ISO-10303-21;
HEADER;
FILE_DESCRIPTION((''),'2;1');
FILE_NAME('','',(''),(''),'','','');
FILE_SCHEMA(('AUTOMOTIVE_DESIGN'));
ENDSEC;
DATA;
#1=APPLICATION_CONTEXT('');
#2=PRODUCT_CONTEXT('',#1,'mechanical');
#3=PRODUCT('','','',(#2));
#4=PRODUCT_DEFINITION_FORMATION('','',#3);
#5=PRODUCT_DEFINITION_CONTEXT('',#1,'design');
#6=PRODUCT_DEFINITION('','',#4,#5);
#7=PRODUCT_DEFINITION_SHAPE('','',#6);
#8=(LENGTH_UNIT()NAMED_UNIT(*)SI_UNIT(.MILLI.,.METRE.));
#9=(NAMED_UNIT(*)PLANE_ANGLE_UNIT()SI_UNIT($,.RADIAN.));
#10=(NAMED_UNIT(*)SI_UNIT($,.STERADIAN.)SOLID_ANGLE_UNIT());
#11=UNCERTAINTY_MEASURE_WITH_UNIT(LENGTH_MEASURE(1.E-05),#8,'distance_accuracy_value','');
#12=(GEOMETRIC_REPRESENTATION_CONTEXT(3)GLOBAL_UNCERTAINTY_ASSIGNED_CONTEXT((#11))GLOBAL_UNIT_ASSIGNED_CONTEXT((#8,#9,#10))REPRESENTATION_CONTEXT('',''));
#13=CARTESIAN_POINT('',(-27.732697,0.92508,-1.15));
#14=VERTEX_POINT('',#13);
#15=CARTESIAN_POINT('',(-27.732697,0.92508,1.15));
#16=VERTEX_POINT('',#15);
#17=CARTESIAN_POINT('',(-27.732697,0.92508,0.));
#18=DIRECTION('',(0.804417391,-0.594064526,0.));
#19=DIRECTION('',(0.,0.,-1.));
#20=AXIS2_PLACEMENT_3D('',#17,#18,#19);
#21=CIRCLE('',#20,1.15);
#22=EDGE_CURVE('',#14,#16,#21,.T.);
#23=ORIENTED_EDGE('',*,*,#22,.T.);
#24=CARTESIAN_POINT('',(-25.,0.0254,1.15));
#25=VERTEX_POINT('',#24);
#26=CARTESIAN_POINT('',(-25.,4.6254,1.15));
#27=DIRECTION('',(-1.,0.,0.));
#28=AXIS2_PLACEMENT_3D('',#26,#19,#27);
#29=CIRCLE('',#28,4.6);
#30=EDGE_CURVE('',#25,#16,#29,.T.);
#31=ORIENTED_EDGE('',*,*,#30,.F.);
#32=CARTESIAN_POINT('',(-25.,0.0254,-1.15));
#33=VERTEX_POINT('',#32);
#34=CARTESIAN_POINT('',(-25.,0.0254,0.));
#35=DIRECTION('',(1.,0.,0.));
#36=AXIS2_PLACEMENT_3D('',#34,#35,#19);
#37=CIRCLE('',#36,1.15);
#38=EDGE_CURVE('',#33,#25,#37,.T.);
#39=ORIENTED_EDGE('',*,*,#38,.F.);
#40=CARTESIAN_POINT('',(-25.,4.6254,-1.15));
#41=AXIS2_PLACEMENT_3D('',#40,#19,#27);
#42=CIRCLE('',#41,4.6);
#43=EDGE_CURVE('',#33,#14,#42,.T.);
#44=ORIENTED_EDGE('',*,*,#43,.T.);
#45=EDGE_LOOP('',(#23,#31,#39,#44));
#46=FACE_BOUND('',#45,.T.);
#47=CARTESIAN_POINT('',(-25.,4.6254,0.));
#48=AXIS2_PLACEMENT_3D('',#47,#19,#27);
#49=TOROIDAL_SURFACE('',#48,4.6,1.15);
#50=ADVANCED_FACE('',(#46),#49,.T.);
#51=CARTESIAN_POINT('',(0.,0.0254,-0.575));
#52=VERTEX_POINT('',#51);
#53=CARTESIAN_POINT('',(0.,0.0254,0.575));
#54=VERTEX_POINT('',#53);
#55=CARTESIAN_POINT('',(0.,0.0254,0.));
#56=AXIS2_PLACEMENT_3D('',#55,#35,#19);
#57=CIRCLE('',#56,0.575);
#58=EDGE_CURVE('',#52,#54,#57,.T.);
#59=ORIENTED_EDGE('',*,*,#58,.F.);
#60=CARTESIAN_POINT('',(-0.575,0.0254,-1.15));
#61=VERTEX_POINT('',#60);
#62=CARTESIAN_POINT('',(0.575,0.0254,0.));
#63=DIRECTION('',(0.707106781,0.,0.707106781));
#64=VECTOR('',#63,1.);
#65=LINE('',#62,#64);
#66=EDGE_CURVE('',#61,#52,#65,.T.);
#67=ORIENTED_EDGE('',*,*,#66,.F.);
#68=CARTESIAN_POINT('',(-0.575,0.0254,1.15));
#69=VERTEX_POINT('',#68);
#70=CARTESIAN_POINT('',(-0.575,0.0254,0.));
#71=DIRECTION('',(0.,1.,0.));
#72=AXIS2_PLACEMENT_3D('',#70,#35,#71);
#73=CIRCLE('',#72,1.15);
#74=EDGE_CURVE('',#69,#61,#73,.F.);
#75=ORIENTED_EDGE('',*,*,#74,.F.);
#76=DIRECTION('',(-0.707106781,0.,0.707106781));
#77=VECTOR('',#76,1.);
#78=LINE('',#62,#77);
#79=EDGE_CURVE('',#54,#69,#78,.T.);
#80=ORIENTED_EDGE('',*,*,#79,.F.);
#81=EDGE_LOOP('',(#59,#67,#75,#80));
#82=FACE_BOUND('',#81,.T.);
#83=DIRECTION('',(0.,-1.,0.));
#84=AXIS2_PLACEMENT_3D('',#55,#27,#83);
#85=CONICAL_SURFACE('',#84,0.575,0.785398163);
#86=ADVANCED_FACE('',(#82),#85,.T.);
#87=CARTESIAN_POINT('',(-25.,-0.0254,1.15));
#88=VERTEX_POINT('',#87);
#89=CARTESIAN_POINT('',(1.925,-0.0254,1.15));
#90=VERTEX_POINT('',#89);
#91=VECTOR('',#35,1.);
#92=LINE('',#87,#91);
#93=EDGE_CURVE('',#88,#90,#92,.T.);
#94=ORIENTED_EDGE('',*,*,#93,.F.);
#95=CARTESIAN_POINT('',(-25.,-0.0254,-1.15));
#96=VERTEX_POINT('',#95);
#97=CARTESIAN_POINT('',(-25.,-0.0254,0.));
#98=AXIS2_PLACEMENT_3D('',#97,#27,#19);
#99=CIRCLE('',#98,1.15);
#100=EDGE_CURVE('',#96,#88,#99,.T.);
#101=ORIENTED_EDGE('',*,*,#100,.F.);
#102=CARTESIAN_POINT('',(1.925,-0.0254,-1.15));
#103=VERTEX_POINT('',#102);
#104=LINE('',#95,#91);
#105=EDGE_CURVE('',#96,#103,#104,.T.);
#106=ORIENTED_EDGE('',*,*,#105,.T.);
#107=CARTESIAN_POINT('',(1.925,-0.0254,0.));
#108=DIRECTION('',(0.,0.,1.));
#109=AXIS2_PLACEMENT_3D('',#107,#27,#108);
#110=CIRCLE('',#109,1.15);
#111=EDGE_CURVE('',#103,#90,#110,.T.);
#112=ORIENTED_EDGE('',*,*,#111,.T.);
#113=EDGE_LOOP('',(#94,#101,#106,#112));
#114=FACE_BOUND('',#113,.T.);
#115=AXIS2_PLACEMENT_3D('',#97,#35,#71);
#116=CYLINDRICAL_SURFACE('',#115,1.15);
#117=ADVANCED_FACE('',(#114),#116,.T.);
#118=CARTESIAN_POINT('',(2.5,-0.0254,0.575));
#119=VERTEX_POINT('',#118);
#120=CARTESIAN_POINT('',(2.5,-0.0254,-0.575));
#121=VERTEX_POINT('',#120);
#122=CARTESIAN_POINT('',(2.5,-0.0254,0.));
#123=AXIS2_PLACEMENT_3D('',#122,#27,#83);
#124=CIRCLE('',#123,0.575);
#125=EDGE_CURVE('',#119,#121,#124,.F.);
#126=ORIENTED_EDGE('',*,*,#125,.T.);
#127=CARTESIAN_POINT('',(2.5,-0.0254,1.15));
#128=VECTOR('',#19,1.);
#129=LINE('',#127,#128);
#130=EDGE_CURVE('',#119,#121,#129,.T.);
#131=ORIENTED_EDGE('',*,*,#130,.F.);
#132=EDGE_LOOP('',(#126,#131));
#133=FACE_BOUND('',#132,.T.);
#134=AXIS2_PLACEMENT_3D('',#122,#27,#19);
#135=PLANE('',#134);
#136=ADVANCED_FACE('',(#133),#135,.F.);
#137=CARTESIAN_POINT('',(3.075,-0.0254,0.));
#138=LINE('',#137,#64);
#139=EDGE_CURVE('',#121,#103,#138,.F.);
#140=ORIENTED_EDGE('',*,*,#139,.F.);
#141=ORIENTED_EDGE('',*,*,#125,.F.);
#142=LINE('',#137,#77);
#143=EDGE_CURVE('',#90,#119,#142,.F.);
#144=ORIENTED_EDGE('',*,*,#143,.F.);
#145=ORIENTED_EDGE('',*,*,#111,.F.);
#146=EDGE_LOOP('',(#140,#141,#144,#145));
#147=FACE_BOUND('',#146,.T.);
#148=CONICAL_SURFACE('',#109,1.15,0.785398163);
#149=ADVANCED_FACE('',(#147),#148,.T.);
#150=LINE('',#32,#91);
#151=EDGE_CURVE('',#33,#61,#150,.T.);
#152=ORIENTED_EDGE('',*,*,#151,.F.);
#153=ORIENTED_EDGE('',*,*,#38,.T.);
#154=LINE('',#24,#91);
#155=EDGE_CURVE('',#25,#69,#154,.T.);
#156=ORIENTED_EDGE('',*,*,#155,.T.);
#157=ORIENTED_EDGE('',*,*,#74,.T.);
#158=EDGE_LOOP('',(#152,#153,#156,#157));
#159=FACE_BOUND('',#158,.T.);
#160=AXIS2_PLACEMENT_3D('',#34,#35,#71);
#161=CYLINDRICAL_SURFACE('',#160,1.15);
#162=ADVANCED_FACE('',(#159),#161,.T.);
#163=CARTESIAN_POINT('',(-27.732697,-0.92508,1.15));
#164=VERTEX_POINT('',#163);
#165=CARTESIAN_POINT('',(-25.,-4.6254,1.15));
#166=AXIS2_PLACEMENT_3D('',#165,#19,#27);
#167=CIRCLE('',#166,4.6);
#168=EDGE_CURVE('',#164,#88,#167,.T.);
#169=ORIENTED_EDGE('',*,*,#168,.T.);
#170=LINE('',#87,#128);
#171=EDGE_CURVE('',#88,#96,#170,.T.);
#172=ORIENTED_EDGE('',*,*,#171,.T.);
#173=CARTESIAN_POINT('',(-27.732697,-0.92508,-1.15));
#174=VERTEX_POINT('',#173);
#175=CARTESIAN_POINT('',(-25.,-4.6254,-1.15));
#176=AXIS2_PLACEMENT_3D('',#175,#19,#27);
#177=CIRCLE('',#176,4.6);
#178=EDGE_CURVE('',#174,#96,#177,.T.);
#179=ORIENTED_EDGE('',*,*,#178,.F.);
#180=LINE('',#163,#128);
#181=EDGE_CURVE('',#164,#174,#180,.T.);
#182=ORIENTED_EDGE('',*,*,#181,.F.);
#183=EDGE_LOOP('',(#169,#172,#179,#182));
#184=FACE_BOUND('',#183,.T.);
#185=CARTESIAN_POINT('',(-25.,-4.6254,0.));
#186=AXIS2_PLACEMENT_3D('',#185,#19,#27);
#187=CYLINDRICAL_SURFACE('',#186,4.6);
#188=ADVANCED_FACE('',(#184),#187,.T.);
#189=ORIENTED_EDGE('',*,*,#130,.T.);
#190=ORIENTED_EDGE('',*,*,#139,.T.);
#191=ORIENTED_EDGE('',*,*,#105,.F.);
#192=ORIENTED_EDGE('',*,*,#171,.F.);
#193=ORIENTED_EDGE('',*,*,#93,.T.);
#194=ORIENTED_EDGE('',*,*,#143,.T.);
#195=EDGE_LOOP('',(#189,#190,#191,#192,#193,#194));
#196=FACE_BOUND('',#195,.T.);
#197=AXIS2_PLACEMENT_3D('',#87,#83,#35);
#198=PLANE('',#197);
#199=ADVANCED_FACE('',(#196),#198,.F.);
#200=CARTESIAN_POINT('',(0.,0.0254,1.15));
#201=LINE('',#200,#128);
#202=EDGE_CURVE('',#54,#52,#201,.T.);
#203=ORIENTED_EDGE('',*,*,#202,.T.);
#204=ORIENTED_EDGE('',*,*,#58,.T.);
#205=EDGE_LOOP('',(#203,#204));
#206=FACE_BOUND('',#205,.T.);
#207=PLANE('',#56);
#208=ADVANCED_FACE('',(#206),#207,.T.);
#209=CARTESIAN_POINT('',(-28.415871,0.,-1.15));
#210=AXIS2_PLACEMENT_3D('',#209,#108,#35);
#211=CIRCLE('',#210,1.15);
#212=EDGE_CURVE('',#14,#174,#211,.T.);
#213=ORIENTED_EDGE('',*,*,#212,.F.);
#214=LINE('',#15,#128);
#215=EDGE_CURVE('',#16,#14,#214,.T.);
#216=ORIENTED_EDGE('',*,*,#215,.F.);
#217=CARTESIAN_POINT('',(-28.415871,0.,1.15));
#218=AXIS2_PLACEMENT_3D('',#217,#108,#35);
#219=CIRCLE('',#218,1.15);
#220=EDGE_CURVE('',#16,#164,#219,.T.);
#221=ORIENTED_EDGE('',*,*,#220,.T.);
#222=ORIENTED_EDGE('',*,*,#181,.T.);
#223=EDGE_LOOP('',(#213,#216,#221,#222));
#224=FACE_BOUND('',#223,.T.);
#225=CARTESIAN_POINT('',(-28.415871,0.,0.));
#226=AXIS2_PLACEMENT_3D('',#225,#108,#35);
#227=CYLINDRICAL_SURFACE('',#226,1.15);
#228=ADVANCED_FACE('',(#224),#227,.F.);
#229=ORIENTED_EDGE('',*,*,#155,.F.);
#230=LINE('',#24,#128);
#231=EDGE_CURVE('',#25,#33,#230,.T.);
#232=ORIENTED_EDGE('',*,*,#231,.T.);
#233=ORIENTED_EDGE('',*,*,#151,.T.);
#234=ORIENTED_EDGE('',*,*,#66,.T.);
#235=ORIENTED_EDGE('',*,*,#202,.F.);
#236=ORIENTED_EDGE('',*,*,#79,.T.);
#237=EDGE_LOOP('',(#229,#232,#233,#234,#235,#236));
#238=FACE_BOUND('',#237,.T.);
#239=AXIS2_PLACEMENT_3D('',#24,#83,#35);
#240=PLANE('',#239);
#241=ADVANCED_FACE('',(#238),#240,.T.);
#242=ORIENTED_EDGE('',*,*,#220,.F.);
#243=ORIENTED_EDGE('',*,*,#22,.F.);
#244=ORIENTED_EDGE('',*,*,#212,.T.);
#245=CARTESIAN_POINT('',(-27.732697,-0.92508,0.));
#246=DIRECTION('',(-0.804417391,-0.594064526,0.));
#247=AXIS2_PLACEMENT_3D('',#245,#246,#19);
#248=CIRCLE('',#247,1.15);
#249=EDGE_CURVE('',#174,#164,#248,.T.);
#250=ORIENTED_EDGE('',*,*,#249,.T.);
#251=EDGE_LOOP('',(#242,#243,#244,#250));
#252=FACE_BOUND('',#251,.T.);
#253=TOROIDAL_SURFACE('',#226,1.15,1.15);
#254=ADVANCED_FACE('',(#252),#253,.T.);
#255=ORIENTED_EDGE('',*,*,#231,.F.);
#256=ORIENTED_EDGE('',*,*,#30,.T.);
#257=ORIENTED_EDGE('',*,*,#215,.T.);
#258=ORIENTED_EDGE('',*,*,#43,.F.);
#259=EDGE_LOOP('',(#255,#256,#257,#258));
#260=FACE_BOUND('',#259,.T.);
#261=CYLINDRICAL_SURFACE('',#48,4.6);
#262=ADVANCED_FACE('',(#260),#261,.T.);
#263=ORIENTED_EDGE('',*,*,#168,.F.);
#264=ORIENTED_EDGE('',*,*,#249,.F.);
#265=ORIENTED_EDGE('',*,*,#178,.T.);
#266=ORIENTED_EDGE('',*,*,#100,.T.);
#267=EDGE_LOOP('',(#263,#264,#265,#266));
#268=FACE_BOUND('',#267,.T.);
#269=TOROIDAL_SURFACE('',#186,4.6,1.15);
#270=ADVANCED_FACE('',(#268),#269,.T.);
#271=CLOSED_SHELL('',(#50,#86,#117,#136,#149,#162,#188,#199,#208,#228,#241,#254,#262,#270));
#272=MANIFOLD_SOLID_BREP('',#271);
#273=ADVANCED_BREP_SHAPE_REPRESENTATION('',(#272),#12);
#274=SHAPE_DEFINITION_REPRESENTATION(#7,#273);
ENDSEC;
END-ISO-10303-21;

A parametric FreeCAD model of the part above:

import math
import FreeCAD as App
import Part
import Sketcher


def edges_at(feature, points):
    """Names of the edges that pass closest to the given points."""
    edges = feature.Shape.Edges
    near = lambda p: min(range(len(edges)), key=lambda i: edges[i].distToShape(Part.Vertex(*p))[0])
    return sorted({f"Edge{near(p) + 1}" for p in points})

doc = App.newDocument("Part")
body = doc.addObject("PartDesign::Body", "Body")

# Sketch on YZ plane
sketch1 = body.newObject("Sketcher::SketchObject", "Sketch")
sketch1.AttachmentSupport = (doc.getObject("YZ_Plane"), [""])
sketch1.MapMode = "FlatFace"
sketch1.addGeometry([
    Part.LineSegment(App.Vector(0.0254, 1.15, 0), App.Vector(0.0254, -1.15, 0)),
    Part.ArcOfCircle(Part.Circle(App.Vector(0.0254, 0, 0), App.Vector(0, 0, 1), 1.15), math.radians(-90), math.radians(90)),
], False)
sketch1.addConstraint([
    Sketcher.Constraint("Coincident", 0, 1, 1, 2),
    Sketcher.Constraint("Coincident", 1, 1, 0, 2),
    Sketcher.Constraint("Vertical", 0),
    Sketcher.Constraint("PointOnObject", 1, 3, -1),
    Sketcher.Constraint("Vertical", 1, 3, 0, 1),
    Sketcher.Constraint("Radius", 1, 1.15),
    Sketcher.Constraint("DistanceX", -1, 1, 1, 3, 0.0254),
])

# Sketch on XY plane
sketch2 = body.newObject("Sketcher::SketchObject", "Sketch001")
sketch2.AttachmentSupport = (doc.getObject("XY_Plane"), [""])
sketch2.MapMode = "FlatFace"
sketch2.addGeometry([
    Part.LineSegment(App.Vector(2.5, -0.0254, 0), App.Vector(-25, -0.0254, 0)),  # 0
    Part.ArcOfCircle(Part.Circle(App.Vector(-25, -4.6254, 0), App.Vector(0, 0, 1), 4.6), math.radians(90), math.radians(126.445973)),  # 1
    Part.ArcOfCircle(Part.Circle(App.Vector(-28.415871, 0, 0), App.Vector(0, 0, 1), 1.15), math.radians(53.554027), math.radians(306.445973)),  # 2
    Part.ArcOfCircle(Part.Circle(App.Vector(-25, 4.6254, 0), App.Vector(0, 0, 1), 4.6), math.radians(-126.445973), math.radians(-90)),  # 3
    Part.LineSegment(App.Vector(-25, 0.0254, 0), App.Vector(0, 0.0254, 0)),  # 4
], False)
sketch2.addConstraint([
    Sketcher.Constraint("Tangent", 0, 2, 1, 1),
    Sketcher.Constraint("Tangent", 1, 2, 2, 2),
    Sketcher.Constraint("Tangent", 2, 1, 3, 1),
    Sketcher.Constraint("Tangent", 3, 2, 4, 1),
    Sketcher.Constraint("Horizontal", 0),
    Sketcher.Constraint("Horizontal", 4),
    Sketcher.Constraint("Equal", 1, 3),
    Sketcher.Constraint("Symmetric", 1, 3, 3, 3, -1),
    Sketcher.Constraint("PointOnObject", 4, 2, -2),
    Sketcher.Constraint("Radius", 1, 4.6),
    Sketcher.Constraint("DistanceX", 4, 1, 4, 2, 25.0),
    Sketcher.Constraint("Radius", 2, 1.15),
    Sketcher.Constraint("DistanceX", 0, 2, 0, 1, 27.5),
    Sketcher.Constraint("DistanceY", 1, 3, -1, 1, 4.6254),
])
doc.recompute()

additivepipe = body.newObject("PartDesign::AdditivePipe", "AdditivePipe")
additivepipe.Profile = sketch1
additivepipe.Spine = (sketch2, ["Edge1", "Edge2", "Edge3", "Edge4", "Edge5"])
doc.recompute()

chamfer = body.newObject("PartDesign::Chamfer", "Chamfer")
chamfer.Base = (additivepipe, edges_at(additivepipe, [(2.5, -1.175, 0), (0, 1.175, 0)]))
chamfer.Size = 0.575

doc.recompute()
